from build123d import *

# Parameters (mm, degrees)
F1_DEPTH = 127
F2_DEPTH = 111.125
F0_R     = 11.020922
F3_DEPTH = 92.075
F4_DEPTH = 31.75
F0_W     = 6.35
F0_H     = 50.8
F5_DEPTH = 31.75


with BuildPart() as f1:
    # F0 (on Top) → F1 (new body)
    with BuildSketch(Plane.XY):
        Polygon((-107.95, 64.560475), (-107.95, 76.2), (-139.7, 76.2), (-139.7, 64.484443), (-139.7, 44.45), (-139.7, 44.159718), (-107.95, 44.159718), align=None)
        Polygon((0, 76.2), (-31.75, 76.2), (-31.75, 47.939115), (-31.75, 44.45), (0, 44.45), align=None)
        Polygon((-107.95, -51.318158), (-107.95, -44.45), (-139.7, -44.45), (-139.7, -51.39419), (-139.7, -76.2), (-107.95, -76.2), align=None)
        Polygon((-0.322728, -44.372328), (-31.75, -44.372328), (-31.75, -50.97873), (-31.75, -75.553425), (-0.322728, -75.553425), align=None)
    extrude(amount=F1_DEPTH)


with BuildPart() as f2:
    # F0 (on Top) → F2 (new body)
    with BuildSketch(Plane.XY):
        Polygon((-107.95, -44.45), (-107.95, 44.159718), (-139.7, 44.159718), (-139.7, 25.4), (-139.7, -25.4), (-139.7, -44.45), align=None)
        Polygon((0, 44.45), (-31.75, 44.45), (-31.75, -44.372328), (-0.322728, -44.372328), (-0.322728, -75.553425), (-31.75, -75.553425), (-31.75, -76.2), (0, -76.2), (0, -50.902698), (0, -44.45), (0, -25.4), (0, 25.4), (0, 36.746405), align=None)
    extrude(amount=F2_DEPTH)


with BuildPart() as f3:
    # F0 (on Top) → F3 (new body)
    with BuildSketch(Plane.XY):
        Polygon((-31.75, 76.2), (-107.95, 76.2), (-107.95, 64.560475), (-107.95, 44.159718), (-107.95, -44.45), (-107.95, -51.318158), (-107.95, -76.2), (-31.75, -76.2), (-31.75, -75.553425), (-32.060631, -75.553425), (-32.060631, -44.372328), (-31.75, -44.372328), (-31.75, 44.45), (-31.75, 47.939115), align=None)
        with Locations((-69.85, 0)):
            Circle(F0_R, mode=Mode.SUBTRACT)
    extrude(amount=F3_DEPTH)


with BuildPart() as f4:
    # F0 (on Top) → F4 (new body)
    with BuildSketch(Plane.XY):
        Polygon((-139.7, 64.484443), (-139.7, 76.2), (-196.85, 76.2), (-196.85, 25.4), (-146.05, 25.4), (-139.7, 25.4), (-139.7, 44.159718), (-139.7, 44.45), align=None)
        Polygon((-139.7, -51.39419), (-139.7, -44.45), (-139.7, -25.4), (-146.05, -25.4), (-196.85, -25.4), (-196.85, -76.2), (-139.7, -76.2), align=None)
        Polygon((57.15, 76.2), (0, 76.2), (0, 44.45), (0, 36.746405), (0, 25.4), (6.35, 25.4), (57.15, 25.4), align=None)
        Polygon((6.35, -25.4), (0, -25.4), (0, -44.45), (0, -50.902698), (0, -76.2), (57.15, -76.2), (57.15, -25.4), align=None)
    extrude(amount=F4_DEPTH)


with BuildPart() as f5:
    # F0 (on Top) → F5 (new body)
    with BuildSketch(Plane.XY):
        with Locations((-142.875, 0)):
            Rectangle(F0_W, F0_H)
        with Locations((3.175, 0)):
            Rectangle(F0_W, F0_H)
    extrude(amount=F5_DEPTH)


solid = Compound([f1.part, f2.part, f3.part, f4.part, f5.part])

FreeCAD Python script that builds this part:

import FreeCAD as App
import Part
import Sketcher

V = App.Vector
Q = App.Units.Quantity

doc = App.newDocument("Part")
params = doc.addObject("Spreadsheet::Sheet", "Params")
for row, (alias, value) in enumerate([
    ("sketch1_width", "1.25 in"),
    ("pad1_length", "5 in"),
    ("sketch2_width", "1.25 in"),
    ("sketch2_height", "4.75 in"),
    ("pad2_length", "4.375 in"),
    ("sketch3_width", "3 in"),
    ("sketch3_height", "6 in"),
    ("pad3_length", "3.625 in"),
    ("sketch4_height", "2 in"),
    ("sketch4_width", "2.25 in"),
    ("pad4_length", "1.25 in"),
    ("sketch5_height", "2 in"),
    ("sketch5_width", "0.25 in"),
    ("pad5_length", "1.25 in"),
], start=1):
    params.set(f"A{row}", alias)
    params.set(f"B{row}", "=" + value)
    params.setAlias(f"B{row}", alias)

body = doc.addObject("PartDesign::Body", "Body")
body.AllowCompound = True

# Sketch on XY plane
sketch1 = doc.addObject("Sketcher::SketchObject", "Sketch")
body.addObject(sketch1)
sketch1.AttachmentSupport = (doc.XY_Plane, [""])
sketch1.MapMode = "FlatFace"
sketch1.addGeometry(Part.LineSegment(V(-108, 76, 0), V(-140, 76, 0)), False)
sketch1.addGeometry(Part.LineSegment(V(-140, 76, 0), V(-140, 44, 0)), False)
sketch1.addGeometry(Part.LineSegment(V(-140, 44, 0), V(-108, 44, 0)), False)
sketch1.addGeometry(Part.LineSegment(V(-108, 44, 0), V(-108, 76, 0)), False)
sketch1.addGeometry(Part.LineSegment(V(0, 76, 0), V(-32, 76, 0)), False)
sketch1.addGeometry(Part.LineSegment(V(-32, 76, 0), V(-32, 44, 0)), False)
sketch1.addGeometry(Part.LineSegment(V(-32, 44, 0), V(0, 44, 0)), False)
sketch1.addGeometry(Part.LineSegment(V(0, 44, 0), V(0, 76, 0)), False)
sketch1.addGeometry(Part.LineSegment(V(-108, -44, 0), V(-140, -44, 0)), False)
sketch1.addGeometry(Part.LineSegment(V(-140, -44, 0), V(-140, -76, 0)), False)
sketch1.addGeometry(Part.LineSegment(V(-140, -76, 0), V(-108, -76, 0)), False)
sketch1.addGeometry(Part.LineSegment(V(-108, -76, 0), V(-108, -44, 0)), False)
sketch1.addGeometry(Part.LineSegment(V(0, -44, 0), V(-32, -44, 0)), False)
sketch1.addGeometry(Part.LineSegment(V(-32, -44, 0), V(-32, -76, 0)), False)
sketch1.addGeometry(Part.LineSegment(V(-32, -76, 0), V(0, -76, 0)), False)
sketch1.addGeometry(Part.LineSegment(V(0, -76, 0), V(0, -44, 0)), False)
sketch1.addConstraint(Sketcher.Constraint("Coincident", 0, 2, 1, 1))
sketch1.addConstraint(Sketcher.Constraint("Coincident", 1, 2, 2, 1))
sketch1.addConstraint(Sketcher.Constraint("Coincident", 2, 2, 3, 1))
sketch1.addConstraint(Sketcher.Constraint("Coincident", 3, 2, 0, 1))
sketch1.addConstraint(Sketcher.Constraint("Coincident", 4, 2, 5, 1))
sketch1.addConstraint(Sketcher.Constraint("Coincident", 5, 2, 6, 1))
sketch1.addConstraint(Sketcher.Constraint("Coincident", 6, 2, 7, 1))
sketch1.addConstraint(Sketcher.Constraint("Coincident", 7, 2, 4, 1))
sketch1.addConstraint(Sketcher.Constraint("Coincident", 8, 2, 9, 1))
sketch1.addConstraint(Sketcher.Constraint("Coincident", 9, 2, 10, 1))
sketch1.addConstraint(Sketcher.Constraint("Coincident", 10, 2, 11, 1))
sketch1.addConstraint(Sketcher.Constraint("Coincident", 11, 2, 8, 1))
sketch1.addConstraint(Sketcher.Constraint("Coincident", 12, 2, 13, 1))
sketch1.addConstraint(Sketcher.Constraint("Coincident", 13, 2, 14, 1))
sketch1.addConstraint(Sketcher.Constraint("Coincident", 14, 2, 15, 1))
sketch1.addConstraint(Sketcher.Constraint("Coincident", 15, 2, 12, 1))
sketch1.addConstraint(Sketcher.Constraint("Horizontal", 0))
sketch1.addConstraint(Sketcher.Constraint("Vertical", 1))
sketch1.addConstraint(Sketcher.Constraint("Horizontal", 2))
sketch1.addConstraint(Sketcher.Constraint("Vertical", 3))
sketch1.addConstraint(Sketcher.Constraint("Horizontal", 4))
sketch1.addConstraint(Sketcher.Constraint("Vertical", 5))
sketch1.addConstraint(Sketcher.Constraint("Horizontal", 6))
sketch1.addConstraint(Sketcher.Constraint("Vertical", 7))
sketch1.addConstraint(Sketcher.Constraint("Horizontal", 8))
sketch1.addConstraint(Sketcher.Constraint("Vertical", 9))
sketch1.addConstraint(Sketcher.Constraint("Horizontal", 10))
sketch1.addConstraint(Sketcher.Constraint("Vertical", 11))
sketch1.addConstraint(Sketcher.Constraint("Horizontal", 12))
sketch1.addConstraint(Sketcher.Constraint("Vertical", 13))
sketch1.addConstraint(Sketcher.Constraint("Horizontal", 14))
sketch1.addConstraint(Sketcher.Constraint("Vertical", 15))
sketch1.addConstraint(Sketcher.Constraint("Symmetric", 0, 2, 9, 2, -1))
sketch1.addConstraint(Sketcher.Constraint("PointOnObject", 6, 2, -2))
sketch1.addConstraint(Sketcher.Constraint("Horizontal", 3, 2, 4, 2))
sketch1.addConstraint(Sketcher.Constraint("Vertical", 3, 2, 10, 2))
sketch1.addConstraint(Sketcher.Constraint("Vertical", 5, 2, 12, 2))
sketch1.addConstraint(Sketcher.Constraint("Equal", 2, 4))
sketch1.addConstraint(Sketcher.Constraint("Equal", 10, 5))
sketch1.addConstraint(Sketcher.Constraint("Equal", 7, 9))
sketch1.addConstraint(Sketcher.Constraint("DistanceY", -1, 1, 0, 2, Q("3 in")))
sketch1.addConstraint(Sketcher.Constraint("DistanceX", 3, 2, 4, 2, Q("3 in")))
sketch1.addConstraint(Sketcher.Constraint("DistanceX", 0, 2, 0, 1, Q("1.25 in")))
sketch1.addConstraint(Sketcher.Constraint("DistanceX", 12, 2, 12, 1, Q("31.427272 mm")))
sketch1.addConstraint(Sketcher.Constraint("DistanceY", 1, 2, 1, 1, Q("32.040282 mm")))
sketch1.addConstraint(Sketcher.Constraint("DistanceY", 13, 2, 13, 1, Q("31.181097 mm")))
sketch1.addConstraint(Sketcher.Constraint("DistanceY", 12, 2, -1, 1, Q("44.372328 mm")))
sketch1.setExpression("Constraints[42]", "Params.sketch1_width")
pad1 = doc.addObject("PartDesign::Pad", "Pad")
body.addObject(pad1)
pad1.Profile = sketch1
pad1.setExpression("Length", "Params.pad1_length")
body2 = doc.addObject("PartDesign::Body", "Body001")
body2.AllowCompound = True

# Sketch on XY plane
sketch2 = doc.addObject("Sketcher::SketchObject", "Sketch001")
body2.addObject(sketch2)
sketch2.AttachmentSupport = (doc.getObject("XY_Plane001"), [""])
sketch2.MapMode = "FlatFace"
sketch2.addGeometry(Part.LineSegment(V(-108, -44.5, 0), V(-108, 44.2, 0)), False)
sketch2.addGeometry(Part.LineSegment(V(-108, 44.2, 0), V(-139.7, 44.2, 0)), False)
sketch2.addGeometry(Part.LineSegment(V(-139.7, 44.2, 0), V(-139.7, -44.5, 0)), False)
sketch2.addGeometry(Part.LineSegment(V(-139.7, -44.5, 0), V(-108, -44.5, 0)), False)
sketch2.addGeometry(Part.LineSegment(V(0, 44.5, 0), V(-31.8, 44.5, 0)), False)
sketch2.addGeometry(Part.LineSegment(V(-31.8, 44.5, 0), V(-31.8, -44.4, 0)), False)
sketch2.addGeometry(Part.LineSegment(V(-31.8, -44.4, 0), V(-0.3, -44.4, 0)), False)
sketch2.addGeometry(Part.LineSegment(V(-0.3, -44.4, 0), V(-0.3, -75.6, 0)), False)
sketch2.addGeometry(Part.LineSegment(V(-0.3, -75.6, 0), V(-31.8, -75.6, 0)), False)
sketch2.addGeometry(Part.LineSegment(V(-31.8, -75.6, 0), V(-31.8, -76.2, 0)), False)
sketch2.addGeometry(Part.LineSegment(V(-31.8, -76.2, 0), V(0, -76.2, 0)), False)
sketch2.addGeometry(Part.LineSegment(V(0, -76.2, 0), V(0, 44.5, 0)), False)
sketch2.addConstraint(Sketcher.Constraint("Coincident", 0, 2, 1, 1))
sketch2.addConstraint(Sketcher.Constraint("Coincident", 1, 2, 2, 1))
sketch2.addConstraint(Sketcher.Constraint("Coincident", 2, 2, 3, 1))
sketch2.addConstraint(Sketcher.Constraint("Coincident", 3, 2, 0, 1))
sketch2.addConstraint(Sketcher.Constraint("Coincident", 4, 2, 5, 1))
sketch2.addConstraint(Sketcher.Constraint("Coincident", 5, 2, 6, 1))
sketch2.addConstraint(Sketcher.Constraint("Coincident", 6, 2, 7, 1))
sketch2.addConstraint(Sketcher.Constraint("Coincident", 7, 2, 8, 1))
sketch2.addConstraint(Sketcher.Constraint("Coincident", 8, 2, 9, 1))
sketch2.addConstraint(Sketcher.Constraint("Coincident", 9, 2, 10, 1))
sketch2.addConstraint(Sketcher.Constraint("Coincident", 10, 2, 11, 1))
sketch2.addConstraint(Sketcher.Constraint("Coincident", 11, 2, 4, 1))
sketch2.addConstraint(Sketcher.Constraint("Vertical", 0))
sketch2.addConstraint(Sketcher.Constraint("Horizontal", 1))
sketch2.addConstraint(Sketcher.Constraint("Vertical", 2))
sketch2.addConstraint(Sketcher.Constraint("Horizontal", 3))
sketch2.addConstraint(Sketcher.Constraint("Horizontal", 4))
sketch2.addConstraint(Sketcher.Constraint("Vertical", 5))
sketch2.addConstraint(Sketcher.Constraint("Horizontal", 6))
sketch2.addConstraint(Sketcher.Constraint("Vertical", 7))
sketch2.addConstraint(Sketcher.Constraint("Horizontal", 8))
sketch2.addConstraint(Sketcher.Constraint("Vertical", 9))
sketch2.addConstraint(Sketcher.Constraint("Horizontal", 10))
sketch2.addConstraint(Sketcher.Constraint("Vertical", 11))
sketch2.addConstraint(Sketcher.Constraint("PointOnObject", 10, 2, -2))
sketch2.addConstraint(Sketcher.Constraint("Vertical", 5, 2, 8, 2))
sketch2.addConstraint(Sketcher.Constraint("Equal", 3, 4))
sketch2.addConstraint(Sketcher.Constraint("DistanceY", 9, 2, -1, 1, Q("3 in")))
sketch2.addConstraint(Sketcher.Constraint("DistanceX", 0, 2, 4, 2, Q("3 in")))
sketch2.addConstraint(Sketcher.Constraint("DistanceX", 1, 2, 1, 1, Q("1.25 in")))
sketch2.addConstraint(Sketcher.Constraint("DistanceY", 11, 1, 11, 2, Q("4.75 in")))
sketch2.addConstraint(Sketcher.Constraint("DistanceY", 3, 2, 4, 2, Q("3.5 in")))
sketch2.addConstraint(Sketcher.Constraint("DistanceX", 6, 1, 6, 2, Q("31.427272 mm")))
sketch2.addConstraint(Sketcher.Constraint("DistanceY", 0, 1, 0, 2, Q("88.609718 mm")))
sketch2.addConstraint(Sketcher.Constraint("DistanceY", 5, 2, 5, 1, Q("88.822328 mm")))
sketch2.addConstraint(Sketcher.Constraint("DistanceY", 7, 2, 7, 1, Q("31.181097 mm")))
sketch2.setExpression("Constraints[29]", "Params.sketch2_width")
sketch2.setExpression("Constraints[30]", "Params.sketch2_height")
pad2 = doc.addObject("PartDesign::Pad", "Pad001")
body2.addObject(pad2)
pad2.Profile = sketch2
pad2.setExpression("Length", "Params.pad2_length")
body3 = doc.addObject("PartDesign::Body", "Body002")

# Sketch on XY plane
sketch3 = doc.addObject("Sketcher::SketchObject", "Sketch002")
body3.addObject(sketch3)
sketch3.AttachmentSupport = (doc.getObject("XY_Plane002"), [""])
sketch3.MapMode = "FlatFace"
sketch3.addGeometry(Part.LineSegment(V(-31.75, 76.2, 0), V(-107.95, 76.2, 0)), False)
sketch3.addGeometry(Part.LineSegment(V(-107.95, 76.2, 0), V(-107.95, -76.2, 0)), False)
sketch3.addGeometry(Part.LineSegment(V(-107.95, -76.2, 0), V(-31.75, -76.2, 0)), False)
sketch3.addGeometry(Part.LineSegment(V(-31.75, -76.2, 0), V(-31.75, -75.55, 0)), False)
sketch3.addGeometry(Part.LineSegment(V(-31.75, -75.55, 0), V(-32.06, -75.55, 0)), False)
sketch3.addGeometry(Part.LineSegment(V(-32.06, -75.55, 0), V(-32.06, -44.37, 0)), False)
sketch3.addGeometry(Part.LineSegment(V(-32.06, -44.37, 0), V(-31.75, -44.37, 0)), False)
sketch3.addGeometry(Part.LineSegment(V(-31.75, -44.37, 0), V(-31.75, 76.2, 0)), False)
sketch3.addGeometry(Part.Circle(V(-69.85, 0, 0), V(0, 0, 1), 11.02), False)
sketch3.addConstraint(Sketcher.Constraint("Coincident", 0, 2, 1, 1))
sketch3.addConstraint(Sketcher.Constraint("Coincident", 1, 2, 2, 1))
sketch3.addConstraint(Sketcher.Constraint("Coincident", 2, 2, 3, 1))
sketch3.addConstraint(Sketcher.Constraint("Coincident", 3, 2, 4, 1))
sketch3.addConstraint(Sketcher.Constraint("Coincident", 4, 2, 5, 1))
sketch3.addConstraint(Sketcher.Constraint("Coincident", 5, 2, 6, 1))
sketch3.addConstraint(Sketcher.Constraint("Coincident", 6, 2, 7, 1))
sketch3.addConstraint(Sketcher.Constraint("Coincident", 7, 2, 0, 1))
sketch3.addConstraint(Sketcher.Constraint("Horizontal", 0))
sketch3.addConstraint(Sketcher.Constraint("Vertical", 1))
sketch3.addConstraint(Sketcher.Constraint("Horizontal", 2))
sketch3.addConstraint(Sketcher.Constraint("Vertical", 3))
sketch3.addConstraint(Sketcher.Constraint("Horizontal", 4))
sketch3.addConstraint(Sketcher.Constraint("Vertical", 5))
sketch3.addConstraint(Sketcher.Constraint("Horizontal", 6))
sketch3.addConstraint(Sketcher.Constraint("Vertical", 7))
sketch3.addConstraint(Sketcher.Constraint("Symmetric", 2, 2, 7, 2, -1))
sketch3.addConstraint(Sketcher.Constraint("PointOnObject", 8, 3, -1))
sketch3.addConstraint(Sketcher.Constraint("DistanceX", 0, 2, 0, 1, Q("3 in")))
sketch3.addConstraint(Sketcher.Constraint("DistanceY", 1, 2, 1, 1, Q("6 in")))
sketch3.addConstraint(Sketcher.Constraint("DistanceX", 0, 2, 8, 3, Q("1.5 in")))
sketch3.addConstraint(Sketcher.Constraint("DistanceX", 8, 3, -1, 1, Q("2.75 in")))
sketch3.addConstraint(Sketcher.Constraint("Diameter", 8, Q("22.041844 mm")))
sketch3.addConstraint(Sketcher.Constraint("DistanceX", 4, 2, 4, 1, Q("0.310631 mm")))
sketch3.addConstraint(Sketcher.Constraint("DistanceY", 7, 1, 7, 2, Q("120.572328 mm")))
sketch3.addConstraint(Sketcher.Constraint("DistanceY", 3, 1, 3, 2, Q("0.646575 mm")))
sketch3.setExpression("Constraints[18]", "Params.sketch3_width")
sketch3.setExpression("Constraints[19]", "Params.sketch3_height")
pad3 = doc.addObject("PartDesign::Pad", "Pad002")
body3.addObject(pad3)
pad3.Profile = sketch3
pad3.setExpression("Length", "Params.pad3_length")
body4 = doc.addObject("PartDesign::Body", "Body003")
body4.AllowCompound = True

# Sketch on XY plane
sketch4 = doc.addObject("Sketcher::SketchObject", "Sketch003")
body4.addObject(sketch4)
sketch4.AttachmentSupport = (doc.getObject("XY_Plane003"), [""])
sketch4.MapMode = "FlatFace"
sketch4.addGeometry(Part.LineSegment(V(-140, 76, 0), V(-197, 76, 0)), False)
sketch4.addGeometry(Part.LineSegment(V(-197, 76, 0), V(-197, 25, 0)), False)
sketch4.addGeometry(Part.LineSegment(V(-197, 25, 0), V(-140, 25, 0)), False)
sketch4.addGeometry(Part.LineSegment(V(-140, 25, 0), V(-140, 76, 0)), False)
sketch4.addGeometry(Part.LineSegment(V(-140, -25, 0), V(-197, -25, 0)), False)
sketch4.addGeometry(Part.LineSegment(V(-197, -25, 0), V(-197, -76, 0)), False)
sketch4.addGeometry(Part.LineSegment(V(-197, -76, 0), V(-140, -76, 0)), False)
sketch4.addGeometry(Part.LineSegment(V(-140, -76, 0), V(-140, -25, 0)), False)
sketch4.addGeometry(Part.LineSegment(V(57, 76, 0), V(0, 76, 0)), False)
sketch4.addGeometry(Part.LineSegment(V(0, 76, 0), V(0, 25, 0)), False)
sketch4.addGeometry(Part.LineSegment(V(0, 25, 0), V(57, 25, 0)), False)
sketch4.addGeometry(Part.LineSegment(V(57, 25, 0), V(57, 76, 0)), False)
sketch4.addGeometry(Part.LineSegment(V(0, -25, 0), V(0, -76, 0)), False)
sketch4.addGeometry(Part.LineSegment(V(0, -76, 0), V(57, -76, 0)), False)
sketch4.addGeometry(Part.LineSegment(V(57, -76, 0), V(57, -25, 0)), False)
sketch4.addGeometry(Part.LineSegment(V(57, -25, 0), V(0, -25, 0)), False)
sketch4.addConstraint(Sketcher.Constraint("Coincident", 0, 2, 1, 1))
sketch4.addConstraint(Sketcher.Constraint("Coincident", 1, 2, 2, 1))
sketch4.addConstraint(Sketcher.Constraint("Coincident", 2, 2, 3, 1))
sketch4.addConstraint(Sketcher.Constraint("Coincident", 3, 2, 0, 1))
sketch4.addConstraint(Sketcher.Constraint("Coincident", 4, 2, 5, 1))
sketch4.addConstraint(Sketcher.Constraint("Coincident", 5, 2, 6, 1))
sketch4.addConstraint(Sketcher.Constraint("Coincident", 6, 2, 7, 1))
sketch4.addConstraint(Sketcher.Constraint("Coincident", 7, 2, 4, 1))
sketch4.addConstraint(Sketcher.Constraint("Coincident", 8, 2, 9, 1))
sketch4.addConstraint(Sketcher.Constraint("Coincident", 9, 2, 10, 1))
sketch4.addConstraint(Sketcher.Constraint("Coincident", 10, 2, 11, 1))
sketch4.addConstraint(Sketcher.Constraint("Coincident", 11, 2, 8, 1))
sketch4.addConstraint(Sketcher.Constraint("Coincident", 12, 2, 13, 1))
sketch4.addConstraint(Sketcher.Constraint("Coincident", 13, 2, 14, 1))
sketch4.addConstraint(Sketcher.Constraint("Coincident", 14, 2, 15, 1))
sketch4.addConstraint(Sketcher.Constraint("Coincident", 15, 2, 12, 1))
sketch4.addConstraint(Sketcher.Constraint("Horizontal", 0))
sketch4.addConstraint(Sketcher.Constraint("Vertical", 1))
sketch4.addConstraint(Sketcher.Constraint("Horizontal", 2))
sketch4.addConstraint(Sketcher.Constraint("Vertical", 3))
sketch4.addConstraint(Sketcher.Constraint("Horizontal", 4))
sketch4.addConstraint(Sketcher.Constraint("Vertical", 5))
sketch4.addConstraint(Sketcher.Constraint("Horizontal", 6))
sketch4.addConstraint(Sketcher.Constraint("Vertical", 7))
sketch4.addConstraint(Sketcher.Constraint("Horizontal", 8))
sketch4.addConstraint(Sketcher.Constraint("Vertical", 9))
sketch4.addConstraint(Sketcher.Constraint("Horizontal", 10))
sketch4.addConstraint(Sketcher.Constraint("Vertical", 11))
sketch4.addConstraint(Sketcher.Constraint("Vertical", 12))
sketch4.addConstraint(Sketcher.Constraint("Horizontal", 13))
sketch4.addConstraint(Sketcher.Constraint("Vertical", 14))
sketch4.addConstraint(Sketcher.Constraint("Horizontal", 15))
sketch4.addConstraint(Sketcher.Constraint("Symmetric", 8, 2, 12, 2, -1, 1))
sketch4.addConstraint(Sketcher.Constraint("Symmetric", 1, 2, 4, 2, -1))
sketch4.addConstraint(Sketcher.Constraint("Symmetric", 3, 2, 6, 2, -1))
sketch4.addConstraint(Sketcher.Constraint("Symmetric", 10, 2, 14, 2, -1))
sketch4.addConstraint(Sketcher.Constraint("PointOnObject", 8, 2, -2))
sketch4.addConstraint(Sketcher.Constraint("Horizontal", 3, 2, 8, 2))
sketch4.addConstraint(Sketcher.Constraint("Horizontal", 2, 2, 9, 2))
sketch4.addConstraint(Sketcher.Constraint("Equal", 6, 8))
sketch4.addConstraint(Sketcher.Constraint("DistanceY", 1, 2, 1, 1, Q("2 in")))
sketch4.addConstraint(Sketcher.Constraint("DistanceY", -1, 1, 0, 2, Q("3 in")))
sketch4.addConstraint(Sketcher.Constraint("DistanceX", 0, 2, 0, 1, Q("2.25 in")))
sketch4.addConstraint(Sketcher.Constraint("DistanceX", 2, 2, -1, 1, Q("5.5 in")))
sketch4.setExpression("Constraints[40]", "Params.sketch4_height")
sketch4.setExpression("Constraints[42]", "Params.sketch4_width")
pad4 = doc.addObject("PartDesign::Pad", "Pad003")
body4.addObject(pad4)
pad4.Profile = sketch4
pad4.setExpression("Length", "Params.pad4_length")
body5 = doc.addObject("PartDesign::Body", "Body004")
body5.AllowCompound = True

# Sketch on XY plane
sketch5 = doc.addObject("Sketcher::SketchObject", "Sketch004")
body5.addObject(sketch5)
sketch5.AttachmentSupport = (doc.getObject("XY_Plane004"), [""])
sketch5.MapMode = "FlatFace"
sketch5.addGeometry(Part.LineSegment(V(-146, 25, 0), V(-146, -25, 0)), False)
sketch5.addGeometry(Part.LineSegment(V(-146, -25, 0), V(-140, -25, 0)), False)
sketch5.addGeometry(Part.LineSegment(V(-140, -25, 0), V(-140, 25, 0)), False)
sketch5.addGeometry(Part.LineSegment(V(-140, 25, 0), V(-146, 25, 0)), False)
sketch5.addGeometry(Part.LineSegment(V(0, 25, 0), V(0, -25, 0)), False)
sketch5.addGeometry(Part.LineSegment(V(0, -25, 0), V(6, -25, 0)), False)
sketch5.addGeometry(Part.LineSegment(V(6, -25, 0), V(6, 25, 0)), False)
sketch5.addGeometry(Part.LineSegment(V(6, 25, 0), V(0, 25, 0)), False)
sketch5.addConstraint(Sketcher.Constraint("Coincident", 0, 2, 1, 1))
sketch5.addConstraint(Sketcher.Constraint("Coincident", 1, 2, 2, 1))
sketch5.addConstraint(Sketcher.Constraint("Coincident", 2, 2, 3, 1))
sketch5.addConstraint(Sketcher.Constraint("Coincident", 3, 2, 0, 1))
sketch5.addConstraint(Sketcher.Constraint("Coincident", 4, 2, 5, 1))
sketch5.addConstraint(Sketcher.Constraint("Coincident", 5, 2, 6, 1))
sketch5.addConstraint(Sketcher.Constraint("Coincident", 6, 2, 7, 1))
sketch5.addConstraint(Sketcher.Constraint("Coincident", 7, 2, 4, 1))
sketch5.addConstraint(Sketcher.Constraint("Vertical", 0))
sketch5.addConstraint(Sketcher.Constraint("Horizontal", 1))
sketch5.addConstraint(Sketcher.Constraint("Vertical", 2))
sketch5.addConstraint(Sketcher.Constraint("Horizontal", 3))
sketch5.addConstraint(Sketcher.Constraint("Vertical", 4))
sketch5.addConstraint(Sketcher.Constraint("Horizontal", 5))
sketch5.addConstraint(Sketcher.Constraint("Vertical", 6))
sketch5.addConstraint(Sketcher.Constraint("Horizontal", 7))
sketch5.addConstraint(Sketcher.Constraint("Symmetric", 4, 2, 7, 2, -1, 1))
sketch5.addConstraint(Sketcher.Constraint("Horizontal", 1, 2, 4, 2))
sketch5.addConstraint(Sketcher.Constraint("Horizontal", 3, 2, 6, 2))
sketch5.addConstraint(Sketcher.Constraint("Equal", 3, 5))
sketch5.addConstraint(Sketcher.Constraint("DistanceY", 0, 2, 0, 1, Q("2 in")))
sketch5.addConstraint(Sketcher.Constraint("DistanceX", 0, 2, 5, 2, Q("6 in")))
sketch5.addConstraint(Sketcher.Constraint("DistanceX", 1, 1, 1, 2, Q("0.25 in")))
sketch5.setExpression("Constraints[20]", "Params.sketch5_height")
sketch5.setExpression("Constraints[22]", "Params.sketch5_width")
pad5 = doc.addObject("PartDesign::Pad", "Pad004")
body5.addObject(pad5)
pad5.Profile = sketch5
pad5.setExpression("Length", "Params.pad5_length")

doc.recompute()
